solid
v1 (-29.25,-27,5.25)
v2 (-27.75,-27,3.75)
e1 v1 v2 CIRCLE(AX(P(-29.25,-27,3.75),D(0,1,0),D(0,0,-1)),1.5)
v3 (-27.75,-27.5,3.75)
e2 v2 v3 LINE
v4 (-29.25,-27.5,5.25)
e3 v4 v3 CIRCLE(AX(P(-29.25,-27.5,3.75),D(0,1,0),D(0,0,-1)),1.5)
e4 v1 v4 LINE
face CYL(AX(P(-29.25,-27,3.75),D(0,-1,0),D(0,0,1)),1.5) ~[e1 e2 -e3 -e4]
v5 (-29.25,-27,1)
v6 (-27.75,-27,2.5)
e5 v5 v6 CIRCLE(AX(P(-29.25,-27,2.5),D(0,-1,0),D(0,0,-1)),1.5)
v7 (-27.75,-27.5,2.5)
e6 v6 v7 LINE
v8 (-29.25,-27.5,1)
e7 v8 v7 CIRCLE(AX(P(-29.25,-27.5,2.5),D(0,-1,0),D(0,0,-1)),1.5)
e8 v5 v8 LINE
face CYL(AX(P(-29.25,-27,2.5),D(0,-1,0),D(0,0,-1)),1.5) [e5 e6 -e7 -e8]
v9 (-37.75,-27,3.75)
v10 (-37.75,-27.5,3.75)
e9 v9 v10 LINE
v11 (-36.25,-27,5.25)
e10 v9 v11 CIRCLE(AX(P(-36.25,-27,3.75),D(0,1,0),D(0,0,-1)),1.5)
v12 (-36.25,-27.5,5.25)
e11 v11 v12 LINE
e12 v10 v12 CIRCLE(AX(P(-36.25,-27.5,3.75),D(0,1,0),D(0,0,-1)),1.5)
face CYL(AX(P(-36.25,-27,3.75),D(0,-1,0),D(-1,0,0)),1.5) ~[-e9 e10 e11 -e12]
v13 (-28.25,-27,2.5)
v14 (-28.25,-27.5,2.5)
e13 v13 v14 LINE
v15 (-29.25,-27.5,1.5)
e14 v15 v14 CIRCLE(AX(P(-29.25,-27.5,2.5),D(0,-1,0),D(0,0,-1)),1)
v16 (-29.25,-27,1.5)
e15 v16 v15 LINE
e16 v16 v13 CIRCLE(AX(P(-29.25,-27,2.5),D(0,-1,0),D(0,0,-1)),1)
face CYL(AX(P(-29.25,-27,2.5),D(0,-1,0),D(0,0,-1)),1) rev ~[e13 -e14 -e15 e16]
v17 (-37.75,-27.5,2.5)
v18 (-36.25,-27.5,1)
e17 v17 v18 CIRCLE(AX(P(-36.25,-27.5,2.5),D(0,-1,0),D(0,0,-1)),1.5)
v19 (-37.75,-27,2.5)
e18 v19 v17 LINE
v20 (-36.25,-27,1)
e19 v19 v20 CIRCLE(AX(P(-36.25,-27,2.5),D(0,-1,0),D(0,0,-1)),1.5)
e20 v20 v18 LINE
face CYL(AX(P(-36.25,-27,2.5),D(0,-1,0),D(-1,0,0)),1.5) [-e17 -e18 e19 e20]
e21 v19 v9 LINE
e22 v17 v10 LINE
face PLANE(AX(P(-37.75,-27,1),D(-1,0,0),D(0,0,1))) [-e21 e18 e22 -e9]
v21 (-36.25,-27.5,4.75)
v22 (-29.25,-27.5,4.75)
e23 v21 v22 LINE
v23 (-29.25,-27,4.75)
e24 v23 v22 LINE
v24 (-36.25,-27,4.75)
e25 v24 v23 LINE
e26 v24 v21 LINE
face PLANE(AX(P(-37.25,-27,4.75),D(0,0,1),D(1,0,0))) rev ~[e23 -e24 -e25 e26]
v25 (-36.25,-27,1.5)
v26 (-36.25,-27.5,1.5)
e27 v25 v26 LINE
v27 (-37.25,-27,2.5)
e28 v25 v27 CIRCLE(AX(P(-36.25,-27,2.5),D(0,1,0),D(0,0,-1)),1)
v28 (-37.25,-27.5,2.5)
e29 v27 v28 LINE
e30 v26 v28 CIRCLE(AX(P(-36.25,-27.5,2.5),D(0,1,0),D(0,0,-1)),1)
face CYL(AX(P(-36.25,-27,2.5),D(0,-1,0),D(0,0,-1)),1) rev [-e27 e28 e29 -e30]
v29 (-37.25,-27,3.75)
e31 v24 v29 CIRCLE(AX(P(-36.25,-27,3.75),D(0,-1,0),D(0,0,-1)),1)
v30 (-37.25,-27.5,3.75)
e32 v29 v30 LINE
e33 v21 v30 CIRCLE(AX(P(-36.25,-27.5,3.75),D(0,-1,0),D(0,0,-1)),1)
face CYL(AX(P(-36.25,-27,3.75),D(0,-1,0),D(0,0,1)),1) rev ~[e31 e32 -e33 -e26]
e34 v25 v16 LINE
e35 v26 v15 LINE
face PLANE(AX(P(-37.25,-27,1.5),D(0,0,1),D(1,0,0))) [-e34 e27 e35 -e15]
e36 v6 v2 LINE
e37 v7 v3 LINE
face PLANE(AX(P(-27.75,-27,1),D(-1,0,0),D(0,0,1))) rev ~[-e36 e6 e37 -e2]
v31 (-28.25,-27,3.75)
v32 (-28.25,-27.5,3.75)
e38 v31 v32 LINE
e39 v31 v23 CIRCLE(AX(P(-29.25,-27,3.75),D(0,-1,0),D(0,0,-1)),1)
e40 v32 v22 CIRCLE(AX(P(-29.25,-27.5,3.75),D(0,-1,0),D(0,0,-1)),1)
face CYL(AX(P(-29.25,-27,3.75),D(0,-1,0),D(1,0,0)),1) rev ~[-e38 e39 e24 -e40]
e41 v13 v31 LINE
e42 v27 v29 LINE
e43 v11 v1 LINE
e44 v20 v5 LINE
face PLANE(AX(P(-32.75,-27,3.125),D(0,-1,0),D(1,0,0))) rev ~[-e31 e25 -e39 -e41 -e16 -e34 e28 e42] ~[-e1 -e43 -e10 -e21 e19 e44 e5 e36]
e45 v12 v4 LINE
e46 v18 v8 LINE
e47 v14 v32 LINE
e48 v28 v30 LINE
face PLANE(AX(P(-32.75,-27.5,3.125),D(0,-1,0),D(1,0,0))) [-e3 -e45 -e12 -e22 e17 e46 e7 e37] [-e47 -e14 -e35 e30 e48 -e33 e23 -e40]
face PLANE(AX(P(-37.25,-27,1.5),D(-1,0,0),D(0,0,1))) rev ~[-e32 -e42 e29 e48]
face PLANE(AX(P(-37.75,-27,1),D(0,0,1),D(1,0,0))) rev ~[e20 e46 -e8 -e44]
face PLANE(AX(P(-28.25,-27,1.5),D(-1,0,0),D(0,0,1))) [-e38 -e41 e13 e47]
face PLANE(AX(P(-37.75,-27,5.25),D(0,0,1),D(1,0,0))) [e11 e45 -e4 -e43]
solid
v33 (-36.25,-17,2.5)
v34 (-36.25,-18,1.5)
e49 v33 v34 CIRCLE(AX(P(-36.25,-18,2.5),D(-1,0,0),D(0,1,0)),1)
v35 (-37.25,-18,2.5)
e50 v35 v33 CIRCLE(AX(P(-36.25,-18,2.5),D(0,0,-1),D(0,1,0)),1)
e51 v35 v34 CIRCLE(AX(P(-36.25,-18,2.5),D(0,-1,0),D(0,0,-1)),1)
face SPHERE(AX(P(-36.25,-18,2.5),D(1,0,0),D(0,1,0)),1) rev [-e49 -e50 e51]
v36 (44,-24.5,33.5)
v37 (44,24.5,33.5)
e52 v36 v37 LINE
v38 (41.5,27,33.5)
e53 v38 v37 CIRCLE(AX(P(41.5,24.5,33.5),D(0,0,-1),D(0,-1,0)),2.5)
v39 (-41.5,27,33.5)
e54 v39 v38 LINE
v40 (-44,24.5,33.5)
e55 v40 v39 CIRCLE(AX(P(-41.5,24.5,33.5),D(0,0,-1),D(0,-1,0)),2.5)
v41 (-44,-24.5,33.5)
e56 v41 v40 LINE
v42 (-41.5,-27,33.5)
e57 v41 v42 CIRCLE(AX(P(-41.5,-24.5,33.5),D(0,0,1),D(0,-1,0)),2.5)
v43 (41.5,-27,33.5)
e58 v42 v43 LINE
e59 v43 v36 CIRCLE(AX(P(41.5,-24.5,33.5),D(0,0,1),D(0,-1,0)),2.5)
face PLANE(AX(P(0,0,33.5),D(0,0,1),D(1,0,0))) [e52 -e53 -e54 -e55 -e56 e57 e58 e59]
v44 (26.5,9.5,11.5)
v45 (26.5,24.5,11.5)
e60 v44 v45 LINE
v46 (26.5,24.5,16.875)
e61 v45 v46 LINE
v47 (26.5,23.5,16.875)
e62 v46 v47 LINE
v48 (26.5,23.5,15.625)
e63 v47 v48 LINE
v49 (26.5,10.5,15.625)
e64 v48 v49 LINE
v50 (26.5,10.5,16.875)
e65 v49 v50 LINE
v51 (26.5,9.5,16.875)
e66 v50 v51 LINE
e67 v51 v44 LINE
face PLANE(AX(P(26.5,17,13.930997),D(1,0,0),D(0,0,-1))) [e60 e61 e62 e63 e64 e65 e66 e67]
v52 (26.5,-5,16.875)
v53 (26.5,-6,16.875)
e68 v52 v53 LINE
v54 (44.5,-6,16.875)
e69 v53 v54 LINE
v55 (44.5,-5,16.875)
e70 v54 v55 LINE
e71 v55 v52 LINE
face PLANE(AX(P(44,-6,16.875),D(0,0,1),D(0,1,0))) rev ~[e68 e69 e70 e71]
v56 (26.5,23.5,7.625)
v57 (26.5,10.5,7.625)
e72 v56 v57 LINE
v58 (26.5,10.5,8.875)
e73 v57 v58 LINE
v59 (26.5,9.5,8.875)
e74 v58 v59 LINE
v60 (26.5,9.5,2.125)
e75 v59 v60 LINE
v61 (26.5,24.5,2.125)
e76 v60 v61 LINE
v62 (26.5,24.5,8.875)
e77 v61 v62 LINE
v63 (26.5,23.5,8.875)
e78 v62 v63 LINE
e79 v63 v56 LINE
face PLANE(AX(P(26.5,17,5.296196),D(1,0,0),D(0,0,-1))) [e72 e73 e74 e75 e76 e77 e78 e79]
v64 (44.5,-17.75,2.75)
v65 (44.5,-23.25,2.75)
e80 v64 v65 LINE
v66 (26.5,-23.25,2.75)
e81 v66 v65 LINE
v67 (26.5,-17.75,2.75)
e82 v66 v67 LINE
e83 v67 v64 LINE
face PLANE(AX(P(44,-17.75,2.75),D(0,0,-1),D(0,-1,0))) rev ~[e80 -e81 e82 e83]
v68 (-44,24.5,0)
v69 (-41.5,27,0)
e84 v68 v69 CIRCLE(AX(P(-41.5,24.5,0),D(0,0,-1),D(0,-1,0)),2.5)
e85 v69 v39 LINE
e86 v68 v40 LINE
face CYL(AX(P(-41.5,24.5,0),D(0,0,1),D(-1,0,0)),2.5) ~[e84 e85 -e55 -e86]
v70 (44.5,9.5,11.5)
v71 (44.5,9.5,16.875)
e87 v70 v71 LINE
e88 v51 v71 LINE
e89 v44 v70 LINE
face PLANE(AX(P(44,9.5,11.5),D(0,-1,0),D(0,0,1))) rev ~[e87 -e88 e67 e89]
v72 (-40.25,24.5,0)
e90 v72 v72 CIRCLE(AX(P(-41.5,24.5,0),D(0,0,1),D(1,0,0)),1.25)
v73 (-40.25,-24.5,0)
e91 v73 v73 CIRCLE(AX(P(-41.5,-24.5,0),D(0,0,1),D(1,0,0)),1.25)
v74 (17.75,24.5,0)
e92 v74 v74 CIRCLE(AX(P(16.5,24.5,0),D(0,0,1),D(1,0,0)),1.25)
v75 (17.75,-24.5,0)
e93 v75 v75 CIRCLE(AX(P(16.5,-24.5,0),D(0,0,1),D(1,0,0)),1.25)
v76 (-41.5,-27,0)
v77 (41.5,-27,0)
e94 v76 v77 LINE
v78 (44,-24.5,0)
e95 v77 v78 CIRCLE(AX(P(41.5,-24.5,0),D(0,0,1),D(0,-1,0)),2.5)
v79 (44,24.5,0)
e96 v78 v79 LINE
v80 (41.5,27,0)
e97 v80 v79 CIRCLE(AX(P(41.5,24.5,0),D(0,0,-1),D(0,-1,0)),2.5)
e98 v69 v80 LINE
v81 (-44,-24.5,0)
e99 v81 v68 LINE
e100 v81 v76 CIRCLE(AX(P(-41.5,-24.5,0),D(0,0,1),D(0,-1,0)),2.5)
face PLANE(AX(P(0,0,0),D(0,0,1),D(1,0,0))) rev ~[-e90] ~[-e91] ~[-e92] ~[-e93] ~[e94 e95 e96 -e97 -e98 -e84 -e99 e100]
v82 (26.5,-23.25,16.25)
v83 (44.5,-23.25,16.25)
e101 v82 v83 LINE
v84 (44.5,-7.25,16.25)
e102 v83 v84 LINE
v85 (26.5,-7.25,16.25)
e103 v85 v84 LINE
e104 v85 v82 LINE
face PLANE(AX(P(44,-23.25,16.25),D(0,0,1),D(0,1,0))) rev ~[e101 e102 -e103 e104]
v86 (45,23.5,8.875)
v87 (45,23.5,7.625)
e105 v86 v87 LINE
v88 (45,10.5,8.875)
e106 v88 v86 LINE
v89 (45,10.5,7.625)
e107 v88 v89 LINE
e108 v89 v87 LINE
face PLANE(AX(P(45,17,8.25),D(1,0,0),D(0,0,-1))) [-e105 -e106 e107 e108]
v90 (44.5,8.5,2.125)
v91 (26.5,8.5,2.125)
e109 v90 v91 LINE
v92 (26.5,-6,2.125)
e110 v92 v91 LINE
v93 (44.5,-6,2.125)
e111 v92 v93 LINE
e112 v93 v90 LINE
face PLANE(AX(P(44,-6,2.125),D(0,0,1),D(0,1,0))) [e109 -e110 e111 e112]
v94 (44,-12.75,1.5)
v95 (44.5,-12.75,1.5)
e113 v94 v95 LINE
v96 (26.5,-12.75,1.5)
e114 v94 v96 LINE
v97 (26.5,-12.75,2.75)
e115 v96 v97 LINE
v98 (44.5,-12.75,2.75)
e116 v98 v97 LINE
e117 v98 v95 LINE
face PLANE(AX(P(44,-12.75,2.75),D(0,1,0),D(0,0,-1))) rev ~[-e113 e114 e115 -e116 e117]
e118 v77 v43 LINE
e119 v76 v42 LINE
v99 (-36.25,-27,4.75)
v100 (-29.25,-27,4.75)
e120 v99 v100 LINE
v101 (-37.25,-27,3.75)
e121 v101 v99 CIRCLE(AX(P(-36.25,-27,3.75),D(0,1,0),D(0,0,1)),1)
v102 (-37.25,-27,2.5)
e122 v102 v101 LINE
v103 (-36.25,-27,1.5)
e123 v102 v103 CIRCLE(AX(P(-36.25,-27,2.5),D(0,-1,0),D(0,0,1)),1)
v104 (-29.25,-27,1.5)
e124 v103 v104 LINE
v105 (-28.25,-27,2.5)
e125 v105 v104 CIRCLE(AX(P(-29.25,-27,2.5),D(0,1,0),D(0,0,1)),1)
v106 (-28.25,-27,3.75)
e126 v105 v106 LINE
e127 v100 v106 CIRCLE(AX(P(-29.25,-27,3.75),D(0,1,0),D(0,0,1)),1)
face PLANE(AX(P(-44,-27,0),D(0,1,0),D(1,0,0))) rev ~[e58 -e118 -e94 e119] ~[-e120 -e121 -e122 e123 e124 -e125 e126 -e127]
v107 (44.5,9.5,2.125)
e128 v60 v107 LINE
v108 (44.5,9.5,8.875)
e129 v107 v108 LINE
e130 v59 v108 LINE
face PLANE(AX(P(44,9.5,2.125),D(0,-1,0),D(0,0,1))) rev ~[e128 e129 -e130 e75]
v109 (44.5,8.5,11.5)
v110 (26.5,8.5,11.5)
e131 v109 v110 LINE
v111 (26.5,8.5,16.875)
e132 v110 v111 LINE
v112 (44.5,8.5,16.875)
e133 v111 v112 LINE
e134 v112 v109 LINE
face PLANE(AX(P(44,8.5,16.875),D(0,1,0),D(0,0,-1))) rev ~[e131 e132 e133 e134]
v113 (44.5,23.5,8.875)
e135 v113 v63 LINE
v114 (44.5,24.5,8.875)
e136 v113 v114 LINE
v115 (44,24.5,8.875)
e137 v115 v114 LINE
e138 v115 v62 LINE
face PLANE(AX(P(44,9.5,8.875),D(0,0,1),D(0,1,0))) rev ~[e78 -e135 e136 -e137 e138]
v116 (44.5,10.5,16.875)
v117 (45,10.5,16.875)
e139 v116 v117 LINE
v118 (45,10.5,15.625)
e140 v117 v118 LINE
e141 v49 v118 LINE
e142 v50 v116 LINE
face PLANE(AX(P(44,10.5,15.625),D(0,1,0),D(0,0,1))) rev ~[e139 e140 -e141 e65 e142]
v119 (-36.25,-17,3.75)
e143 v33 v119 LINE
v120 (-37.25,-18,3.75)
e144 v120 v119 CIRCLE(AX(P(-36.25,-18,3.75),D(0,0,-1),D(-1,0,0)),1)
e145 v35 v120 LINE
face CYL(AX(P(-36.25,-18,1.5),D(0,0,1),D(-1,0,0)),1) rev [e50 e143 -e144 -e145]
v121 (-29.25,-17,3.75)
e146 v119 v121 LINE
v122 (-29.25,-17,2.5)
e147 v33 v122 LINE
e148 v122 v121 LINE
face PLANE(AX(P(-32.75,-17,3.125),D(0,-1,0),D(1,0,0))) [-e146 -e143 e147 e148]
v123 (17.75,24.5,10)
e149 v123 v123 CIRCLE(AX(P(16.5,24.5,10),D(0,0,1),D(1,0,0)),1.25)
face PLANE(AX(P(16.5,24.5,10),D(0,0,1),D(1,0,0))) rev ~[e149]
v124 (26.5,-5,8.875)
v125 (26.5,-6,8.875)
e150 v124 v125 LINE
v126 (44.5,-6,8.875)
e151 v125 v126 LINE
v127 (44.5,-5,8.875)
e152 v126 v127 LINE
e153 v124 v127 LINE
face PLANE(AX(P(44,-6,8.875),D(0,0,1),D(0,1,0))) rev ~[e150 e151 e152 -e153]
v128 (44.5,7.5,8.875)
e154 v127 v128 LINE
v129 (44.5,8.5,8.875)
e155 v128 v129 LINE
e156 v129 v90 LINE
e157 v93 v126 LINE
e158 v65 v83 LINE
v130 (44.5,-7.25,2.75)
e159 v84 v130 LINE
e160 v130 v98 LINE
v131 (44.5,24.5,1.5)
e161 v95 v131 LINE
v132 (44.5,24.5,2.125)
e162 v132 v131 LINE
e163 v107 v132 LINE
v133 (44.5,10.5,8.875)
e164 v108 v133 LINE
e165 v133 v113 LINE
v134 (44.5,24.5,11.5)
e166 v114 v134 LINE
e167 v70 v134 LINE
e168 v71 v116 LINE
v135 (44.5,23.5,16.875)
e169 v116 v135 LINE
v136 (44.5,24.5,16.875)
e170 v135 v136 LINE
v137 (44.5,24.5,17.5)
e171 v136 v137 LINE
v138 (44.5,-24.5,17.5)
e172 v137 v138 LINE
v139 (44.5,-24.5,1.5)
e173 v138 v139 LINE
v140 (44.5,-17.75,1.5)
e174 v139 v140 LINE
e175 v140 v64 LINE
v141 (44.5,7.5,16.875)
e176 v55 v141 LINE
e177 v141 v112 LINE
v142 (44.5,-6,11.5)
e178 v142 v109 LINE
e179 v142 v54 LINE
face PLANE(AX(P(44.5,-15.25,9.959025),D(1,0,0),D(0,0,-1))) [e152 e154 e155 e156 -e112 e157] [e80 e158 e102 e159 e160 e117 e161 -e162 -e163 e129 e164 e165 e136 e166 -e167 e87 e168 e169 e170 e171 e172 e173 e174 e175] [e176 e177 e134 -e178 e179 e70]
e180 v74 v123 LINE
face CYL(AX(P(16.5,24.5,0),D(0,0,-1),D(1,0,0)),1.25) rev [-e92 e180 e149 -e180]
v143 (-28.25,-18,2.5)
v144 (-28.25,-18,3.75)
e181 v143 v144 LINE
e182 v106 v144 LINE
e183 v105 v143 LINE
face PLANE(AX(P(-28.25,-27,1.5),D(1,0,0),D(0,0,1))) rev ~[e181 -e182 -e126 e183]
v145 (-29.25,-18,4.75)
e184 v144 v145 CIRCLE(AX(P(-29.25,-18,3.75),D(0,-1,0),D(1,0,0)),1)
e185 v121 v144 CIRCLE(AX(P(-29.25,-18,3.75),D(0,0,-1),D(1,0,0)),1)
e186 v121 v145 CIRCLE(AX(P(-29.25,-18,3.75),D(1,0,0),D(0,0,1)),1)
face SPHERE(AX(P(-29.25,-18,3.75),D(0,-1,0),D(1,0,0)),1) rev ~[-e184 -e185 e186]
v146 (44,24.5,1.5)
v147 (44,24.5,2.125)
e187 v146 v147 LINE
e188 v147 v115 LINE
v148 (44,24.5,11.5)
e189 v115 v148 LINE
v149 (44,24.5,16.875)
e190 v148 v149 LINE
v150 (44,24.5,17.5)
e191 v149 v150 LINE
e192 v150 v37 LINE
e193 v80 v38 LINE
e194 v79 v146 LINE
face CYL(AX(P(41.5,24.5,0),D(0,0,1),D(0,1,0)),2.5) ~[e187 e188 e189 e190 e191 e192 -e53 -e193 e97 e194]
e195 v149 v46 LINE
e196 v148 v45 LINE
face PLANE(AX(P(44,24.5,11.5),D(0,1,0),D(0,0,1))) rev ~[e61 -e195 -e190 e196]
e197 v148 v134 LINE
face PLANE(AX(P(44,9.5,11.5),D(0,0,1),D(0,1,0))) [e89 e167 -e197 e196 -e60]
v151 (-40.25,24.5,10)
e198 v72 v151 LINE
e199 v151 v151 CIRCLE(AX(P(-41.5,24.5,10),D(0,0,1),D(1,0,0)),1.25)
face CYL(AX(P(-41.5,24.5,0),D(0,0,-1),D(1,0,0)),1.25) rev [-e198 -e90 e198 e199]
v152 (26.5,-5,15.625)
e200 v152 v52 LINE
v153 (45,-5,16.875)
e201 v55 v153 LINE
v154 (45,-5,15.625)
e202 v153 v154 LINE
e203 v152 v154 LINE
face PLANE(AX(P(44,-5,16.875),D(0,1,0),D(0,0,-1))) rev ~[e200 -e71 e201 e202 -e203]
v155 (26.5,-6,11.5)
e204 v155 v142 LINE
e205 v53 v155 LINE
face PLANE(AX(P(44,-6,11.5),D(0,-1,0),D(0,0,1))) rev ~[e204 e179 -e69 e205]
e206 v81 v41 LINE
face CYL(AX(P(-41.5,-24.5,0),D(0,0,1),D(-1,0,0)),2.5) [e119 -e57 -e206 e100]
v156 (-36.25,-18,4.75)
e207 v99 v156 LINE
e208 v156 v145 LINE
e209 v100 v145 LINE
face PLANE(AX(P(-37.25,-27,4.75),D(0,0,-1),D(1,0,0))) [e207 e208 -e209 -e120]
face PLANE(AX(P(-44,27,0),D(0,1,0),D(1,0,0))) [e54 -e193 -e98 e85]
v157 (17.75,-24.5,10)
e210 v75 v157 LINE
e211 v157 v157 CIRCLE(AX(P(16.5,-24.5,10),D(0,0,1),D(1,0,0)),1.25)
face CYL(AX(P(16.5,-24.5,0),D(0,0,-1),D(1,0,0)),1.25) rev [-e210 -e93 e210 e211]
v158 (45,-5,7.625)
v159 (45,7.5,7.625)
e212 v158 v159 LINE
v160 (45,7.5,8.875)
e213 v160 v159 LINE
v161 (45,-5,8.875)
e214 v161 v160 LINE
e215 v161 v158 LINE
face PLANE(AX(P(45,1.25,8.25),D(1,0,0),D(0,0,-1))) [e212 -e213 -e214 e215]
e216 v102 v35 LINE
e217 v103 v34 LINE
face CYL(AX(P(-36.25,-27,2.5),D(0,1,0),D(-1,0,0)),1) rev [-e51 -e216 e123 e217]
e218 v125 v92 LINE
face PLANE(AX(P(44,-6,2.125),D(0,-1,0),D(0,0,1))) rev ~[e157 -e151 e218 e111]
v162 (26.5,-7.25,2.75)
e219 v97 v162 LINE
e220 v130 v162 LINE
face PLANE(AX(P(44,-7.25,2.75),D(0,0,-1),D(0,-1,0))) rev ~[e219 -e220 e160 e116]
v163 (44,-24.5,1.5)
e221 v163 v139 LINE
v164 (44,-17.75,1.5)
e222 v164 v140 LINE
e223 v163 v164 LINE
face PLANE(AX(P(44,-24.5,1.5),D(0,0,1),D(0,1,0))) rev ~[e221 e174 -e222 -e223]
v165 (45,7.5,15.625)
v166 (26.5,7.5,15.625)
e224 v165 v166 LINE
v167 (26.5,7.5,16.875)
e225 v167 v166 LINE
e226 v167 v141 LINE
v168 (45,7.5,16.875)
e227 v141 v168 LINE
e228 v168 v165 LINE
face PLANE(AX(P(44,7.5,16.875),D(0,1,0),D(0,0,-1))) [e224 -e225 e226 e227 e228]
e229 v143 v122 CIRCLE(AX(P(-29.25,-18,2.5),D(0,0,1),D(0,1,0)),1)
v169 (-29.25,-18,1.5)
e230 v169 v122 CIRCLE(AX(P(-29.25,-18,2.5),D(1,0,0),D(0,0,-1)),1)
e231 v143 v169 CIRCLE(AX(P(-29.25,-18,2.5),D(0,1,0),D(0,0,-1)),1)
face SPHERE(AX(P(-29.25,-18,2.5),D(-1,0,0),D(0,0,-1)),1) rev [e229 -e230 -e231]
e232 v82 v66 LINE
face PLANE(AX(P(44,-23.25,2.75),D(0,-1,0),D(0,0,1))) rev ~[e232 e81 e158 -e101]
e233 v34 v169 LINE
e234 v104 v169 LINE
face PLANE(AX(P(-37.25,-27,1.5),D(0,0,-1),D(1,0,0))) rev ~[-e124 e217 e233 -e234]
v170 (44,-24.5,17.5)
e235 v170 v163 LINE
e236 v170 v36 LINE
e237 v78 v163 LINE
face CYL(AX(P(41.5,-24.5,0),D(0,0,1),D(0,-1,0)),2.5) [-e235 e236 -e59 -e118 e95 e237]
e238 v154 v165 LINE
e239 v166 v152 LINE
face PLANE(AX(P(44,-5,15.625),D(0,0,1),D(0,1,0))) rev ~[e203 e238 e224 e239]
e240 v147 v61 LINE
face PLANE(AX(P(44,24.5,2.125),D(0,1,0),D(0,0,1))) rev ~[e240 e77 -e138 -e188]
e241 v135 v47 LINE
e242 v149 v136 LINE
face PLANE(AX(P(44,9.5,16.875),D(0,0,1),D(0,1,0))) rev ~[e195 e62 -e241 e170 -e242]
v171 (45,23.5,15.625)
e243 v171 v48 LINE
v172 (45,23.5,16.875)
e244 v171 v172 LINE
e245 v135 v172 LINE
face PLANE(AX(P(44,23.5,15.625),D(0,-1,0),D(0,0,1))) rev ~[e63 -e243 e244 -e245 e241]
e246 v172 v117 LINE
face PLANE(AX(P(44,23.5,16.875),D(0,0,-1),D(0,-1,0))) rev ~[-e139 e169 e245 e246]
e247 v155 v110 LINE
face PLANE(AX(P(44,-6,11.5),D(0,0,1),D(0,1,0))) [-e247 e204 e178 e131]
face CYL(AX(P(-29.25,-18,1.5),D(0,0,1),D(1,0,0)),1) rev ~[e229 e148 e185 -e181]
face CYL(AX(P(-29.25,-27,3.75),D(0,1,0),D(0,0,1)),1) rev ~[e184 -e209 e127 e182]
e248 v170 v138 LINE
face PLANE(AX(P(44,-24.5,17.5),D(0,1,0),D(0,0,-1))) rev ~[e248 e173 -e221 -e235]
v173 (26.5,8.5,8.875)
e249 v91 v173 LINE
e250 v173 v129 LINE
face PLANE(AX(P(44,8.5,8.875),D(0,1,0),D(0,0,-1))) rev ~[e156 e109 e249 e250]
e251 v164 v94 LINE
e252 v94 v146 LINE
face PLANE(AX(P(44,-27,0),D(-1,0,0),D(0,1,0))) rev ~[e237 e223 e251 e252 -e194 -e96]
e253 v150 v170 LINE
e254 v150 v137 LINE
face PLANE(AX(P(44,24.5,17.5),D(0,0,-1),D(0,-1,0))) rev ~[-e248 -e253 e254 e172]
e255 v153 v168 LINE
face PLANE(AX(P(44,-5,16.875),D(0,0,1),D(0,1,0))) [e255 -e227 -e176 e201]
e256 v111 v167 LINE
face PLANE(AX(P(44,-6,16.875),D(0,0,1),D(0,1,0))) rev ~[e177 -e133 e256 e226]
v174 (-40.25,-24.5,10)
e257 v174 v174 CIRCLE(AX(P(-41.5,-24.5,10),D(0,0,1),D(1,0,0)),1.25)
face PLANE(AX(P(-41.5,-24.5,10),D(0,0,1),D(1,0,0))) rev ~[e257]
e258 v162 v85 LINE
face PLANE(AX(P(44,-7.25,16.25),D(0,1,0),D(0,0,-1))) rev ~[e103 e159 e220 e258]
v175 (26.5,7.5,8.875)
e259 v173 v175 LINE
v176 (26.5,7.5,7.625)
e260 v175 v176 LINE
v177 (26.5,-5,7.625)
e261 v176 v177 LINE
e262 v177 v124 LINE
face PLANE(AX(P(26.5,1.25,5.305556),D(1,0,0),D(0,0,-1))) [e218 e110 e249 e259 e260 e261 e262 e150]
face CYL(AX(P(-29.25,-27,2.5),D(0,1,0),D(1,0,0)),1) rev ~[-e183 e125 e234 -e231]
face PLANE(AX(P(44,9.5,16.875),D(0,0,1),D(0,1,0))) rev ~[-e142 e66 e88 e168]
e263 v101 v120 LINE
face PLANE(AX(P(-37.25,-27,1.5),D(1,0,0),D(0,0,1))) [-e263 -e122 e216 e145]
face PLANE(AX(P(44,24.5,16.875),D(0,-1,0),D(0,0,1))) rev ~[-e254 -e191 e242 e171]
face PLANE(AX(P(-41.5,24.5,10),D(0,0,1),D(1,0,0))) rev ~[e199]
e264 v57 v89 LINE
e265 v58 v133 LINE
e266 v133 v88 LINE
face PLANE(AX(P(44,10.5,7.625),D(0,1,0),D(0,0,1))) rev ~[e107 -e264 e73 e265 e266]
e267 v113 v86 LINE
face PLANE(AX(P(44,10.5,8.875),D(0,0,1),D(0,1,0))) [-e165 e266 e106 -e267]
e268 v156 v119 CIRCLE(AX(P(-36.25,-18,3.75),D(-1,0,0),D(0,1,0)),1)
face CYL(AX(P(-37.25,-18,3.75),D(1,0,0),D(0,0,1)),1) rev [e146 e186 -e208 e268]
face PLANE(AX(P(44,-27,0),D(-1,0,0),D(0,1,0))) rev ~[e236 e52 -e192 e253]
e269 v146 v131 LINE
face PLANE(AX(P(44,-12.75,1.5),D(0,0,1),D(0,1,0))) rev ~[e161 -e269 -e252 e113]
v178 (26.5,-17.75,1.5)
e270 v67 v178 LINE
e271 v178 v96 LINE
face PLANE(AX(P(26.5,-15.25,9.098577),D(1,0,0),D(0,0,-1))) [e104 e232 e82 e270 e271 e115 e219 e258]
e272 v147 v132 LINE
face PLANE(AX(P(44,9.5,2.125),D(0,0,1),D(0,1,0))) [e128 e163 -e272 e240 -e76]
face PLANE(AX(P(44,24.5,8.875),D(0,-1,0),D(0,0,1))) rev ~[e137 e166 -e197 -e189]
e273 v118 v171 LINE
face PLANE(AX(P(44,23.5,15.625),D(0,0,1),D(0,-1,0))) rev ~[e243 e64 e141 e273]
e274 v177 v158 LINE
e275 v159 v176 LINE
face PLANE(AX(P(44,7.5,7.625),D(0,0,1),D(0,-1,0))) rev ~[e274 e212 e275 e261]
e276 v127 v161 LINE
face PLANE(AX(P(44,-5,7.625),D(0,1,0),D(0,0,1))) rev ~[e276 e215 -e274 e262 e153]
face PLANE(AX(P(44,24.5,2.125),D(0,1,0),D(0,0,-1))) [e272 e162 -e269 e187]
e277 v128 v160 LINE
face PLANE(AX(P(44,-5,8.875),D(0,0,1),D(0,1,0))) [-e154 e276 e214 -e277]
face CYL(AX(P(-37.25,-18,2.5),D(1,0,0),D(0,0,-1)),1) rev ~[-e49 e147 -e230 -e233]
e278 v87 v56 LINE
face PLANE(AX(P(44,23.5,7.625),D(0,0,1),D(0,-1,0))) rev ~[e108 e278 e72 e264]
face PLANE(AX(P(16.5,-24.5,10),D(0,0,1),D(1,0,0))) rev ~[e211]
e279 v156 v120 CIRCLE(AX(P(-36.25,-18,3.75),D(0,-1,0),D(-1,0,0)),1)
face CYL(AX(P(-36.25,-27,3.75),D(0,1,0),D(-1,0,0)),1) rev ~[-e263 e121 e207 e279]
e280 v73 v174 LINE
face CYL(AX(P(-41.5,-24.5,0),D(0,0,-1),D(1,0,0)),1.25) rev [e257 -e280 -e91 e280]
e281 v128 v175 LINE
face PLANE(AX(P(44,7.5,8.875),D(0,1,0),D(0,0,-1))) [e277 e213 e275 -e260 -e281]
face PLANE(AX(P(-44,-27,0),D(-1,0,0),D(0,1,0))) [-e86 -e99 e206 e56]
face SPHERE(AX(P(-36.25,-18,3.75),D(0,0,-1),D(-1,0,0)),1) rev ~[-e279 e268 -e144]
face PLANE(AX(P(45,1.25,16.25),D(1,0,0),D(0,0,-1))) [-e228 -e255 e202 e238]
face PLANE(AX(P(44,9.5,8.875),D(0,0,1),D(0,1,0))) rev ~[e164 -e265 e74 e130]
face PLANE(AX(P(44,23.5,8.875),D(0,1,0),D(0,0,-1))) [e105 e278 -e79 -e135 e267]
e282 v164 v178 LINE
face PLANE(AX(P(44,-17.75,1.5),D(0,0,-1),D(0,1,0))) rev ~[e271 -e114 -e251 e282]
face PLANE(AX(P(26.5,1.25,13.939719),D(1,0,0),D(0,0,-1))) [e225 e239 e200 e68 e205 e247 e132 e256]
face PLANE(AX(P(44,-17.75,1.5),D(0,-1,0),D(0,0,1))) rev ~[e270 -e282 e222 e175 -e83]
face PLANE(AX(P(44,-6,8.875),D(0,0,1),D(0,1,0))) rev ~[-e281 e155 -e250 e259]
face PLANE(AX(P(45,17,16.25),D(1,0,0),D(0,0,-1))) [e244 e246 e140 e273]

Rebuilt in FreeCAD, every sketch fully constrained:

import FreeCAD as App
import Part
import Sketcher

V = App.Vector


def edges_at(feature, points):
    """Names of the edges that pass closest to the given points."""
    edges = feature.Shape.Edges
    near = lambda p: min(range(len(edges)), key=lambda i: edges[i].distToShape(Part.Vertex(*p))[0])
    return sorted({f"Edge{near(p) + 1}" for p in points})


def add_polygon(sketch, points):
    """Adds a closed chain of lines whose ends are joined by coincident constraints."""
    first, n = sketch.GeometryCount, len(points)
    for a, b in zip(points, points[1:] + points[:1]):
        sketch.addGeometry(Part.LineSegment(App.Vector(*a, 0), App.Vector(*b, 0)), False)
    for i in range(n):
        sketch.addConstraint(Sketcher.Constraint("Coincident", first + i, 2, first + (i + 1) % n, 1))

doc = App.newDocument("Part")
body = doc.addObject("PartDesign::Body", "Body")

# Sketch on XY plane
sketch1 = body.newObject("Sketcher::SketchObject", "Sketch")
sketch1.AttachmentSupport = (doc.getObject("XY_Plane"), [""])
sketch1.MapMode = "FlatFace"
add_polygon(sketch1, [(-44, 27), (-44, -27), (44, -27), (44, 27)])  # lines 0-3
sketch1.addConstraint(Sketcher.Constraint("Vertical", 0))
sketch1.addConstraint(Sketcher.Constraint("Horizontal", 1))
sketch1.addConstraint(Sketcher.Constraint("Vertical", 2))
sketch1.addConstraint(Sketcher.Constraint("Horizontal", 3))
sketch1.addConstraint(Sketcher.Constraint("Symmetric", 0, 2, 2, 2, -1, 1))
sketch1.addConstraint(Sketcher.Constraint("DistanceX", 1, 1, 1, 2, 88.0))
sketch1.addConstraint(Sketcher.Constraint("DistanceY", 0, 2, 0, 1, 54.0))
pad1 = body.newObject("PartDesign::Pad", "Pad")
pad1.Profile = sketch1
pad1.Length = 33.5

# Sketch on XY plane
sketch2 = body.newObject("Sketcher::SketchObject", "Sketch001")
sketch2.AttachmentSupport = (doc.getObject("XY_Plane"), [""])
sketch2.MapMode = "FlatFace"
sketch2.addGeometry(Part.Circle(V(16.5, 24.5, 0), V(0, 0, 1), 1.25), False)
sketch2.addGeometry(Part.Circle(V(-41.5, 24.5, 0), V(0, 0, 1), 1.25), False)
sketch2.addGeometry(Part.Circle(V(-41.5, -24.5, 0), V(0, 0, 1), 1.25), False)
sketch2.addGeometry(Part.Circle(V(16.5, -24.5, 0), V(0, 0, 1), 1.25), False)
sketch2.addConstraint(Sketcher.Constraint("Equal", 0, 1))
sketch2.addConstraint(Sketcher.Constraint("Equal", 1, 2))
sketch2.addConstraint(Sketcher.Constraint("Equal", 2, 3))
sketch2.addConstraint(Sketcher.Constraint("Symmetric", 1, 3, 2, 3, -1))
sketch2.addConstraint(Sketcher.Constraint("Symmetric", 0, 3, 3, 3, -1))
sketch2.addConstraint(Sketcher.Constraint("Horizontal", 0, 3, 1, 3))
sketch2.addConstraint(Sketcher.Constraint("Diameter", 0, 2.5))
sketch2.addConstraint(Sketcher.Constraint("DistanceX", 1, 3, 0, 3, 58.0))
sketch2.addConstraint(Sketcher.Constraint("DistanceY", 2, 3, 1, 3, 49.0))
sketch2.addConstraint(Sketcher.Constraint("DistanceX", -1, 1, 0, 3, 16.5))
pocket1 = body.newObject("PartDesign::Pocket", "Pocket")
pocket1.Profile = sketch2
pocket1.Length = 10
pocket1.Reversed = True
doc.recompute()

fillet = body.newObject("PartDesign::Fillet", "Fillet")
fillet.Base = (pocket1, edges_at(pocket1, [
    (44, -27, 16.75),
    (-44, -27, 16.75),
    (-44, 27, 16.75),
    (44, 27, 16.75),
]))
fillet.Radius = 2.5

# Sketch on YZ plane
sketch3 = body.newObject("Sketcher::SketchObject", "Sketch002")
sketch3.AttachmentSupport = (doc.getObject("YZ_Plane"), [""])
sketch3.MapMode = "FlatFace"
sketch3.AttachmentOffset = App.Placement(V(0, 0, 44), App.Rotation())
add_polygon(sketch3, [(-17.75, 2.75), (-17.75, 1.5), (-12.75, 1.5), (-12.75, 2.75), (-7.25, 2.75), (-7.25, 16.25), (-23.25, 16.25), (-23.25, 2.75)])  # lines 0-7
add_polygon(sketch3, [(-5, 16.875), (-6, 16.875), (-6, 11.5), (8.5, 11.5), (8.5, 16.875), (7.5, 16.875), (7.5, 15.625), (-5, 15.625)])  # lines 8-15
add_polygon(sketch3, [(-6, 8.875), (-6, 2.125), (8.5, 2.125), (8.5, 8.875), (7.5, 8.875), (7.5, 7.625), (-5, 7.625), (-5, 8.875)])  # lines 16-23
add_polygon(sketch3, [(10.5, 16.875), (9.5, 16.875), (9.5, 11.5), (24.5, 11.5), (24.5, 16.875), (23.5, 16.875), (23.5, 15.625), (10.5, 15.625)])  # lines 24-31
add_polygon(sketch3, [(9.5, 8.875), (9.5, 2.125), (24.5, 2.125), (24.5, 8.875), (23.5, 8.875), (23.5, 7.625), (10.5, 7.625), (10.5, 8.875)])  # lines 32-39
sketch3.addConstraint(Sketcher.Constraint("Vertical", 0))
sketch3.addConstraint(Sketcher.Constraint("Horizontal", 1))
sketch3.addConstraint(Sketcher.Constraint("Vertical", 2))
sketch3.addConstraint(Sketcher.Constraint("Horizontal", 3))
sketch3.addConstraint(Sketcher.Constraint("Vertical", 4))
sketch3.addConstraint(Sketcher.Constraint("Horizontal", 5))
sketch3.addConstraint(Sketcher.Constraint("Vertical", 6))
sketch3.addConstraint(Sketcher.Constraint("Horizontal", 7))
sketch3.addConstraint(Sketcher.Constraint("Horizontal", 8))
sketch3.addConstraint(Sketcher.Constraint("Vertical", 9))
sketch3.addConstraint(Sketcher.Constraint("Horizontal", 10))
sketch3.addConstraint(Sketcher.Constraint("Vertical", 11))
sketch3.addConstraint(Sketcher.Constraint("Horizontal", 12))
sketch3.addConstraint(Sketcher.Constraint("Vertical", 13))
sketch3.addConstraint(Sketcher.Constraint("Horizontal", 14))
sketch3.addConstraint(Sketcher.Constraint("Vertical", 15))
sketch3.addConstraint(Sketcher.Constraint("Vertical", 16))
sketch3.addConstraint(Sketcher.Constraint("Horizontal", 17))
sketch3.addConstraint(Sketcher.Constraint("Vertical", 18))
sketch3.addConstraint(Sketcher.Constraint("Horizontal", 19))
sketch3.addConstraint(Sketcher.Constraint("Vertical", 20))
sketch3.addConstraint(Sketcher.Constraint("Horizontal", 21))
sketch3.addConstraint(Sketcher.Constraint("Vertical", 22))
sketch3.addConstraint(Sketcher.Constraint("Horizontal", 23))
sketch3.addConstraint(Sketcher.Constraint("Horizontal", 24))
sketch3.addConstraint(Sketcher.Constraint("Vertical", 25))
sketch3.addConstraint(Sketcher.Constraint("Horizontal", 26))
sketch3.addConstraint(Sketcher.Constraint("Vertical", 27))
sketch3.addConstraint(Sketcher.Constraint("Horizontal", 28))
sketch3.addConstraint(Sketcher.Constraint("Vertical", 29))
sketch3.addConstraint(Sketcher.Constraint("Horizontal", 30))
sketch3.addConstraint(Sketcher.Constraint("Vertical", 31))
sketch3.addConstraint(Sketcher.Constraint("Vertical", 32))
sketch3.addConstraint(Sketcher.Constraint("Horizontal", 33))
sketch3.addConstraint(Sketcher.Constraint("Vertical", 34))
sketch3.addConstraint(Sketcher.Constraint("Horizontal", 35))
sketch3.addConstraint(Sketcher.Constraint("Vertical", 36))
sketch3.addConstraint(Sketcher.Constraint("Horizontal", 37))
sketch3.addConstraint(Sketcher.Constraint("Vertical", 38))
sketch3.addConstraint(Sketcher.Constraint("Horizontal", 39))
sketch3.addConstraint(Sketcher.Constraint("Horizontal", 3, 2, 6, 2))
sketch3.addConstraint(Sketcher.Constraint("Horizontal", 8, 2, 11, 2))
sketch3.addConstraint(Sketcher.Constraint("Horizontal", 19, 2, 22, 2))
sketch3.addConstraint(Sketcher.Constraint("Horizontal", 15, 2, 24, 2))
sketch3.addConstraint(Sketcher.Constraint("Horizontal", 10, 2, 25, 2))
sketch3.addConstraint(Sketcher.Constraint("Horizontal", 24, 2, 27, 2))
sketch3.addConstraint(Sketcher.Constraint("Horizontal", 14, 2, 29, 2))
sketch3.addConstraint(Sketcher.Constraint("Horizontal", 17, 2, 32, 2))
sketch3.addConstraint(Sketcher.Constraint("Horizontal", 23, 2, 34, 2))
sketch3.addConstraint(Sketcher.Constraint("Horizontal", 21, 2, 36, 2))
sketch3.addConstraint(Sketcher.Constraint("Horizontal", 35, 2, 38, 2))
sketch3.addConstraint(Sketcher.Constraint("Vertical", 9, 2, 16, 2))
sketch3.addConstraint(Sketcher.Constraint("Vertical", 11, 2, 17, 2))
sketch3.addConstraint(Sketcher.Constraint("Vertical", 13, 2, 19, 2))
sketch3.addConstraint(Sketcher.Constraint("Vertical", 15, 2, 21, 2))
sketch3.addConstraint(Sketcher.Constraint("Vertical", 25, 2, 32, 2))
sketch3.addConstraint(Sketcher.Constraint("Vertical", 27, 2, 33, 2))
sketch3.addConstraint(Sketcher.Constraint("Vertical", 29, 2, 35, 2))
sketch3.addConstraint(Sketcher.Constraint("Vertical", 31, 2, 37, 2))
sketch3.addConstraint(Sketcher.Constraint("Equal", 3, 7))
sketch3.addConstraint(Sketcher.Constraint("Equal", 8, 12))
sketch3.addConstraint(Sketcher.Constraint("Equal", 23, 24))
sketch3.addConstraint(Sketcher.Constraint("Equal", 24, 28))
sketch3.addConstraint(Sketcher.Constraint("Equal", 2, 13))
sketch3.addConstraint(Sketcher.Constraint("Equal", 15, 20))
sketch3.addConstraint(Sketcher.Constraint("DistanceX", 1, 1, 1, 2, 5.0))
sketch3.addConstraint(Sketcher.Constraint("DistanceX", 5, 2, 5, 1, 16.0))
sketch3.addConstraint(Sketcher.Constraint("DistanceX", 8, 2, 8, 1, 1.0))
sketch3.addConstraint(Sketcher.Constraint("DistanceX", 26, 1, 26, 2, 15.0))
sketch3.addConstraint(Sketcher.Constraint("DistanceX", 10, 1, 10, 2, 14.5))
sketch3.addConstraint(Sketcher.Constraint("DistanceY", 4, 1, 4, 2, 13.5))
sketch3.addConstraint(Sketcher.Constraint("DistanceX", 8, 2, -1, 1, 6.0))
sketch3.addConstraint(Sketcher.Constraint("DistanceY", 1, 2, 9, 2, 10.0))
sketch3.addConstraint(Sketcher.Constraint("DistanceY", 18, 2, 11, 2, 8.0))
sketch3.addConstraint(Sketcher.Constraint("DistanceX", 11, 2, 24, 2, 1.0))
sketch3.addConstraint(Sketcher.Constraint("DistanceY", 0, 2, 0, 1, 1.25))
sketch3.addConstraint(Sketcher.Constraint("DistanceY", 16, 2, 16, 1, 6.75))
sketch3.addConstraint(Sketcher.Constraint("DistanceY", -1, 1, 0, 2, 1.5))
sketch3.addConstraint(Sketcher.Constraint("DistanceY", 9, 2, 9, 1, 5.375))
sketch3.addConstraint(Sketcher.Constraint("DistanceX", 0, 2, -1, 1, 17.75))
pocket2 = body.newObject("PartDesign::Pocket", "Pocket001")
pocket2.Profile = sketch3
pocket2.Length = 17.5

# Sketch on YZ plane
sketch4 = body.newObject("Sketcher::SketchObject", "Sketch003")
sketch4.AttachmentSupport = (doc.getObject("YZ_Plane"), [""])
sketch4.MapMode = "FlatFace"
sketch4.AttachmentOffset = App.Placement(V(0, 0, 44), App.Rotation())
add_polygon(sketch4, [(-12.75, 1.5), (24.5, 1.5), (24.5, 2.125), (9.5, 2.125), (9.5, 8.875), (24.5, 8.875), (24.5, 11.5), (9.5, 11.5), (9.5, 16.875), (24.5, 16.875), (24.5, 17.5), (-24.5, 17.5), (-24.5, 1.5), (-17.75, 1.5), (-17.75, 2.75), (-23.25, 2.75), (-23.25, 16.25), (-7.25, 16.25), (-7.25, 2.75), (-12.75, 2.75)])  # lines 0-19
add_polygon(sketch4, [(8.5, 11.5), (-6, 11.5), (-6, 16.875), (8.5, 16.875)])  # lines 20-23
add_polygon(sketch4, [(8.5, 2.125), (-6, 2.125), (-6, 8.875), (8.5, 8.875)])  # lines 24-27
sketch4.addConstraint(Sketcher.Constraint("Horizontal", 0))
sketch4.addConstraint(Sketcher.Constraint("Vertical", 1))
sketch4.addConstraint(Sketcher.Constraint("Horizontal", 2))
sketch4.addConstraint(Sketcher.Constraint("Vertical", 3))
sketch4.addConstraint(Sketcher.Constraint("Horizontal", 4))
sketch4.addConstraint(Sketcher.Constraint("Vertical", 5))
sketch4.addConstraint(Sketcher.Constraint("Horizontal", 6))
sketch4.addConstraint(Sketcher.Constraint("Vertical", 7))
sketch4.addConstraint(Sketcher.Constraint("Horizontal", 8))
sketch4.addConstraint(Sketcher.Constraint("Vertical", 9))
sketch4.addConstraint(Sketcher.Constraint("Horizontal", 10))
sketch4.addConstraint(Sketcher.Constraint("Vertical", 11))
sketch4.addConstraint(Sketcher.Constraint("Horizontal", 12))
sketch4.addConstraint(Sketcher.Constraint("Vertical", 13))
sketch4.addConstraint(Sketcher.Constraint("Horizontal", 14))
sketch4.addConstraint(Sketcher.Constraint("Vertical", 15))
sketch4.addConstraint(Sketcher.Constraint("Horizontal", 16))
sketch4.addConstraint(Sketcher.Constraint("Vertical", 17))
sketch4.addConstraint(Sketcher.Constraint("Horizontal", 18))
sketch4.addConstraint(Sketcher.Constraint("Vertical", 19))
sketch4.addConstraint(Sketcher.Constraint("Horizontal", 20))
sketch4.addConstraint(Sketcher.Constraint("Vertical", 21))
sketch4.addConstraint(Sketcher.Constraint("Horizontal", 22))
sketch4.addConstraint(Sketcher.Constraint("Vertical", 23))
sketch4.addConstraint(Sketcher.Constraint("Horizontal", 24))
sketch4.addConstraint(Sketcher.Constraint("Vertical", 25))
sketch4.addConstraint(Sketcher.Constraint("Horizontal", 26))
sketch4.addConstraint(Sketcher.Constraint("Vertical", 27))
sketch4.addConstraint(Sketcher.Constraint("Symmetric", 0, 2, 11, 2, -2))
sketch4.addConstraint(Sketcher.Constraint("Horizontal", 14, 2, 17, 2))
sketch4.addConstraint(Sketcher.Constraint("Horizontal", 6, 2, 20, 2))
sketch4.addConstraint(Sketcher.Constraint("Horizontal", 8, 2, 21, 2))
sketch4.addConstraint(Sketcher.Constraint("Horizontal", 2, 2, 24, 2))
sketch4.addConstraint(Sketcher.Constraint("Horizontal", 4, 2, 25, 2))
sketch4.addConstraint(Sketcher.Constraint("Vertical", 1, 2, 4, 2))
sketch4.addConstraint(Sketcher.Constraint("Vertical", 3, 2, 6, 2))
sketch4.addConstraint(Sketcher.Constraint("Vertical", 5, 2, 8, 2))
sketch4.addConstraint(Sketcher.Constraint("Vertical", 21, 2, 24, 2))
sketch4.addConstraint(Sketcher.Constraint("Vertical", 23, 2, 26, 2))
sketch4.addConstraint(Sketcher.Constraint("Equal", 14, 18))
sketch4.addConstraint(Sketcher.Constraint("Equal", 12, 3))
sketch4.addConstraint(Sketcher.Constraint("Equal", 1, 9))
sketch4.addConstraint(Sketcher.Constraint("Equal", 16, 11))
sketch4.addConstraint(Sketcher.Constraint("DistanceX", 2, 2, 2, 1, 15.0))
sketch4.addConstraint(Sketcher.Constraint("DistanceX", 10, 2, 10, 1, 49.0))
sketch4.addConstraint(Sketcher.Constraint("DistanceX", 16, 1, 16, 2, 16.0))
sketch4.addConstraint(Sketcher.Constraint("DistanceX", 14, 2, 14, 1, 5.5))
sketch4.addConstraint(Sketcher.Constraint("DistanceX", 20, 2, 20, 1, 14.5))
sketch4.addConstraint(Sketcher.Constraint("DistanceY", 15, 1, 15, 2, 13.5))
sketch4.addConstraint(Sketcher.Constraint("DistanceX", 20, 2, -1, 1, 6.0))
sketch4.addConstraint(Sketcher.Constraint("DistanceY", 0, 2, 5, 2, 10.0))
sketch4.addConstraint(Sketcher.Constraint("DistanceY", 3, 2, 7, 2, 8.0))
sketch4.addConstraint(Sketcher.Constraint("DistanceX", 0, 1, 0, 2, 37.25))
sketch4.addConstraint(Sketcher.Constraint("DistanceY", 13, 1, 13, 2, 1.25))
sketch4.addConstraint(Sketcher.Constraint("DistanceY", -1, 1, 0, 2, 1.5))
pad2 = body.newObject("PartDesign::Pad", "Pad001")
pad2.Profile = sketch4
pad2.Length = 0.5

# Sketch on YZ plane
sketch5 = body.newObject("Sketcher::SketchObject", "Sketch004")
sketch5.AttachmentSupport = (doc.getObject("YZ_Plane"), [""])
sketch5.MapMode = "FlatFace"
sketch5.AttachmentOffset = App.Placement(V(0, 0, 44), App.Rotation())
add_polygon(sketch5, [(7.5, 16.875), (-5, 16.875), (-5, 15.625), (7.5, 15.625)])  # lines 0-3
add_polygon(sketch5, [(7.5, 8.875), (-5, 8.875), (-5, 7.625), (7.5, 7.625)])  # lines 4-7
add_polygon(sketch5, [(23.5, 8.875), (10.5, 8.875), (10.5, 7.625), (23.5, 7.625)])  # lines 8-11
add_polygon(sketch5, [(23.5, 16.875), (10.5, 16.875), (10.5, 15.625), (23.5, 15.625)])  # lines 12-15
sketch5.addConstraint(Sketcher.Constraint("Horizontal", 0))
sketch5.addConstraint(Sketcher.Constraint("Vertical", 1))
sketch5.addConstraint(Sketcher.Constraint("Horizontal", 2))
sketch5.addConstraint(Sketcher.Constraint("Vertical", 3))
sketch5.addConstraint(Sketcher.Constraint("Horizontal", 4))
sketch5.addConstraint(Sketcher.Constraint("Vertical", 5))
sketch5.addConstraint(Sketcher.Constraint("Horizontal", 6))
sketch5.addConstraint(Sketcher.Constraint("Vertical", 7))
sketch5.addConstraint(Sketcher.Constraint("Horizontal", 8))
sketch5.addConstraint(Sketcher.Constraint("Vertical", 9))
sketch5.addConstraint(Sketcher.Constraint("Horizontal", 10))
sketch5.addConstraint(Sketcher.Constraint("Vertical", 11))
sketch5.addConstraint(Sketcher.Constraint("Horizontal", 12))
sketch5.addConstraint(Sketcher.Constraint("Vertical", 13))
sketch5.addConstraint(Sketcher.Constraint("Horizontal", 14))
sketch5.addConstraint(Sketcher.Constraint("Vertical", 15))
sketch5.addConstraint(Sketcher.Constraint("Horizontal", 7, 2, 8, 2))
sketch5.addConstraint(Sketcher.Constraint("Horizontal", 6, 2, 9, 2))
sketch5.addConstraint(Sketcher.Constraint("Horizontal", 3, 2, 12, 2))
sketch5.addConstraint(Sketcher.Constraint("Horizontal", 2, 2, 13, 2))
sketch5.addConstraint(Sketcher.Constraint("Vertical", 1, 2, 4, 2))
sketch5.addConstraint(Sketcher.Constraint("Vertical", 3, 2, 6, 2))
sketch5.addConstraint(Sketcher.Constraint("Vertical", 9, 2, 12, 2))
sketch5.addConstraint(Sketcher.Constraint("Vertical", 11, 2, 14, 2))
sketch5.addConstraint(Sketcher.Constraint("Equal", 3, 5))
sketch5.addConstraint(Sketcher.Constraint("DistanceX", 8, 2, 8, 1, 13.0))
sketch5.addConstraint(Sketcher.Constraint("DistanceX", 0, 2, 0, 1, 12.5))
sketch5.addConstraint(Sketcher.Constraint("DistanceX", 0, 2, -1, 1, 5.0))
sketch5.addConstraint(Sketcher.Constraint("DistanceY", 4, 2, 0, 2, 8.0))
sketch5.addConstraint(Sketcher.Constraint("DistanceX", 7, 2, 8, 2, 3.0))
sketch5.addConstraint(Sketcher.Constraint("DistanceY", 1, 2, 1, 1, 1.25))
sketch5.addConstraint(Sketcher.Constraint("DistanceY", -1, 1, 0, 2, 16.875))
pad3 = body.newObject("PartDesign::Pad", "Pad002")
pad3.Profile = sketch5
pad3.Length = 1

# Sketch on XZ plane
sketch6 = body.newObject("Sketcher::SketchObject", "Sketch005")
sketch6.AttachmentSupport = (doc.getObject("XZ_Plane"), [""])
sketch6.MapMode = "FlatFace"
sketch6.AttachmentOffset = App.Placement(V(0, 0, 27), App.Rotation())
add_polygon(sketch6, [(-37.25, 4.75), (-37.25, 1.5), (-28.25, 1.5), (-28.25, 4.75)])  # lines 0-3
sketch6.addConstraint(Sketcher.Constraint("Vertical", 0))
sketch6.addConstraint(Sketcher.Constraint("Horizontal", 1))
sketch6.addConstraint(Sketcher.Constraint("Vertical", 2))
sketch6.addConstraint(Sketcher.Constraint("Horizontal", 3))
sketch6.addConstraint(Sketcher.Constraint("DistanceX", 1, 1, 1, 2, 9.0))
sketch6.addConstraint(Sketcher.Constraint("DistanceY", 0, 2, 0, 1, 3.25))
sketch6.addConstraint(Sketcher.Constraint("DistanceY", -1, 1, 0, 2, 1.5))
sketch6.addConstraint(Sketcher.Constraint("DistanceX", 0, 2, -1, 1, 37.25))
pocket3 = body.newObject("PartDesign::Pocket", "Pocket002")
pocket3.Profile = sketch6
pocket3.Length = 10
doc.recompute()

fillet2 = body.newObject("PartDesign::Fillet", "Fillet001")
fillet2.Base = (pocket3, edges_at(pocket3, [
    (-28.25, -22, 4.75),
    (-32.75, -17, 1.5),
    (-28.25, -22, 1.5),
    (-37.25, -17, 3.125),
    (-37.25, -22, 1.5),
    (-37.25, -22, 4.75),
    (-28.25, -17, 3.125),
    (-32.75, -17, 4.75),
]))
fillet2.Radius = 1
body2 = doc.addObject("PartDesign::Body", "Body001")

# Sketch on XZ plane
sketch7 = body2.newObject("Sketcher::SketchObject", "Sketch006")
sketch7.AttachmentSupport = (doc.getObject("XZ_Plane001"), [""])
sketch7.MapMode = "FlatFace"
sketch7.AttachmentOffset = App.Placement(V(0, 0, 27), App.Rotation())
add_polygon(sketch7, [(-37.75, 5.25), (-37.75, 1), (-27.75, 1), (-27.75, 5.25)])  # lines 0-3
add_polygon(sketch7, [(-28.25, 1.5), (-37.25, 1.5), (-37.25, 4.75), (-28.25, 4.75)])  # lines 4-7
sketch7.addConstraint(Sketcher.Constraint("Vertical", 0))
sketch7.addConstraint(Sketcher.Constraint("Horizontal", 1))
sketch7.addConstraint(Sketcher.Constraint("Vertical", 2))
sketch7.addConstraint(Sketcher.Constraint("Horizontal", 3))
sketch7.addConstraint(Sketcher.Constraint("Horizontal", 4))
sketch7.addConstraint(Sketcher.Constraint("Vertical", 5))
sketch7.addConstraint(Sketcher.Constraint("Horizontal", 6))
sketch7.addConstraint(Sketcher.Constraint("Vertical", 7))
sketch7.addConstraint(Sketcher.Constraint("DistanceX", 1, 1, 1, 2, 10.0))
sketch7.addConstraint(Sketcher.Constraint("DistanceX", 4, 2, 4, 1, 9.0))
sketch7.addConstraint(Sketcher.Constraint("DistanceY", -1, 1, 0, 2, 1.0))
sketch7.addConstraint(Sketcher.Constraint("DistanceY", 0, 2, 0, 1, 4.25))
sketch7.addConstraint(Sketcher.Constraint("DistanceY", 5, 1, 5, 2, 3.25))
sketch7.addConstraint(Sketcher.Constraint("DistanceY", -1, 1, 4, 2, 1.5))
sketch7.addConstraint(Sketcher.Constraint("DistanceX", 0, 2, 4, 2, 0.5))
sketch7.addConstraint(Sketcher.Constraint("DistanceX", 0, 2, -1, 1, 37.75))
pad4 = body2.newObject("PartDesign::Pad", "Pad003")
pad4.Profile = sketch7
pad4.Length = 0.5
doc.recompute()

fillet3 = body2.newObject("PartDesign::Fillet", "Fillet002")
fillet3.Base = (pad4, edges_at(pad4, [
    (-27.75, -27.25, 5.25),
    (-27.75, -27.25, 1),
    (-37.75, -27.25, 1),
    (-37.75, -27.25, 5.25),
]))
fillet3.Radius = 1.5
doc.recompute()

fillet4 = body2.newObject("PartDesign::Fillet", "Fillet003")
fillet4.Base = (fillet3, edges_at(fillet3, [
    (-37.25, -27.25, 4.75),
    (-37.25, -27.25, 1.5),
    (-28.25, -27.25, 1.5),
    (-28.25, -27.25, 4.75),
]))
fillet4.Radius = 1

doc.recompute()
